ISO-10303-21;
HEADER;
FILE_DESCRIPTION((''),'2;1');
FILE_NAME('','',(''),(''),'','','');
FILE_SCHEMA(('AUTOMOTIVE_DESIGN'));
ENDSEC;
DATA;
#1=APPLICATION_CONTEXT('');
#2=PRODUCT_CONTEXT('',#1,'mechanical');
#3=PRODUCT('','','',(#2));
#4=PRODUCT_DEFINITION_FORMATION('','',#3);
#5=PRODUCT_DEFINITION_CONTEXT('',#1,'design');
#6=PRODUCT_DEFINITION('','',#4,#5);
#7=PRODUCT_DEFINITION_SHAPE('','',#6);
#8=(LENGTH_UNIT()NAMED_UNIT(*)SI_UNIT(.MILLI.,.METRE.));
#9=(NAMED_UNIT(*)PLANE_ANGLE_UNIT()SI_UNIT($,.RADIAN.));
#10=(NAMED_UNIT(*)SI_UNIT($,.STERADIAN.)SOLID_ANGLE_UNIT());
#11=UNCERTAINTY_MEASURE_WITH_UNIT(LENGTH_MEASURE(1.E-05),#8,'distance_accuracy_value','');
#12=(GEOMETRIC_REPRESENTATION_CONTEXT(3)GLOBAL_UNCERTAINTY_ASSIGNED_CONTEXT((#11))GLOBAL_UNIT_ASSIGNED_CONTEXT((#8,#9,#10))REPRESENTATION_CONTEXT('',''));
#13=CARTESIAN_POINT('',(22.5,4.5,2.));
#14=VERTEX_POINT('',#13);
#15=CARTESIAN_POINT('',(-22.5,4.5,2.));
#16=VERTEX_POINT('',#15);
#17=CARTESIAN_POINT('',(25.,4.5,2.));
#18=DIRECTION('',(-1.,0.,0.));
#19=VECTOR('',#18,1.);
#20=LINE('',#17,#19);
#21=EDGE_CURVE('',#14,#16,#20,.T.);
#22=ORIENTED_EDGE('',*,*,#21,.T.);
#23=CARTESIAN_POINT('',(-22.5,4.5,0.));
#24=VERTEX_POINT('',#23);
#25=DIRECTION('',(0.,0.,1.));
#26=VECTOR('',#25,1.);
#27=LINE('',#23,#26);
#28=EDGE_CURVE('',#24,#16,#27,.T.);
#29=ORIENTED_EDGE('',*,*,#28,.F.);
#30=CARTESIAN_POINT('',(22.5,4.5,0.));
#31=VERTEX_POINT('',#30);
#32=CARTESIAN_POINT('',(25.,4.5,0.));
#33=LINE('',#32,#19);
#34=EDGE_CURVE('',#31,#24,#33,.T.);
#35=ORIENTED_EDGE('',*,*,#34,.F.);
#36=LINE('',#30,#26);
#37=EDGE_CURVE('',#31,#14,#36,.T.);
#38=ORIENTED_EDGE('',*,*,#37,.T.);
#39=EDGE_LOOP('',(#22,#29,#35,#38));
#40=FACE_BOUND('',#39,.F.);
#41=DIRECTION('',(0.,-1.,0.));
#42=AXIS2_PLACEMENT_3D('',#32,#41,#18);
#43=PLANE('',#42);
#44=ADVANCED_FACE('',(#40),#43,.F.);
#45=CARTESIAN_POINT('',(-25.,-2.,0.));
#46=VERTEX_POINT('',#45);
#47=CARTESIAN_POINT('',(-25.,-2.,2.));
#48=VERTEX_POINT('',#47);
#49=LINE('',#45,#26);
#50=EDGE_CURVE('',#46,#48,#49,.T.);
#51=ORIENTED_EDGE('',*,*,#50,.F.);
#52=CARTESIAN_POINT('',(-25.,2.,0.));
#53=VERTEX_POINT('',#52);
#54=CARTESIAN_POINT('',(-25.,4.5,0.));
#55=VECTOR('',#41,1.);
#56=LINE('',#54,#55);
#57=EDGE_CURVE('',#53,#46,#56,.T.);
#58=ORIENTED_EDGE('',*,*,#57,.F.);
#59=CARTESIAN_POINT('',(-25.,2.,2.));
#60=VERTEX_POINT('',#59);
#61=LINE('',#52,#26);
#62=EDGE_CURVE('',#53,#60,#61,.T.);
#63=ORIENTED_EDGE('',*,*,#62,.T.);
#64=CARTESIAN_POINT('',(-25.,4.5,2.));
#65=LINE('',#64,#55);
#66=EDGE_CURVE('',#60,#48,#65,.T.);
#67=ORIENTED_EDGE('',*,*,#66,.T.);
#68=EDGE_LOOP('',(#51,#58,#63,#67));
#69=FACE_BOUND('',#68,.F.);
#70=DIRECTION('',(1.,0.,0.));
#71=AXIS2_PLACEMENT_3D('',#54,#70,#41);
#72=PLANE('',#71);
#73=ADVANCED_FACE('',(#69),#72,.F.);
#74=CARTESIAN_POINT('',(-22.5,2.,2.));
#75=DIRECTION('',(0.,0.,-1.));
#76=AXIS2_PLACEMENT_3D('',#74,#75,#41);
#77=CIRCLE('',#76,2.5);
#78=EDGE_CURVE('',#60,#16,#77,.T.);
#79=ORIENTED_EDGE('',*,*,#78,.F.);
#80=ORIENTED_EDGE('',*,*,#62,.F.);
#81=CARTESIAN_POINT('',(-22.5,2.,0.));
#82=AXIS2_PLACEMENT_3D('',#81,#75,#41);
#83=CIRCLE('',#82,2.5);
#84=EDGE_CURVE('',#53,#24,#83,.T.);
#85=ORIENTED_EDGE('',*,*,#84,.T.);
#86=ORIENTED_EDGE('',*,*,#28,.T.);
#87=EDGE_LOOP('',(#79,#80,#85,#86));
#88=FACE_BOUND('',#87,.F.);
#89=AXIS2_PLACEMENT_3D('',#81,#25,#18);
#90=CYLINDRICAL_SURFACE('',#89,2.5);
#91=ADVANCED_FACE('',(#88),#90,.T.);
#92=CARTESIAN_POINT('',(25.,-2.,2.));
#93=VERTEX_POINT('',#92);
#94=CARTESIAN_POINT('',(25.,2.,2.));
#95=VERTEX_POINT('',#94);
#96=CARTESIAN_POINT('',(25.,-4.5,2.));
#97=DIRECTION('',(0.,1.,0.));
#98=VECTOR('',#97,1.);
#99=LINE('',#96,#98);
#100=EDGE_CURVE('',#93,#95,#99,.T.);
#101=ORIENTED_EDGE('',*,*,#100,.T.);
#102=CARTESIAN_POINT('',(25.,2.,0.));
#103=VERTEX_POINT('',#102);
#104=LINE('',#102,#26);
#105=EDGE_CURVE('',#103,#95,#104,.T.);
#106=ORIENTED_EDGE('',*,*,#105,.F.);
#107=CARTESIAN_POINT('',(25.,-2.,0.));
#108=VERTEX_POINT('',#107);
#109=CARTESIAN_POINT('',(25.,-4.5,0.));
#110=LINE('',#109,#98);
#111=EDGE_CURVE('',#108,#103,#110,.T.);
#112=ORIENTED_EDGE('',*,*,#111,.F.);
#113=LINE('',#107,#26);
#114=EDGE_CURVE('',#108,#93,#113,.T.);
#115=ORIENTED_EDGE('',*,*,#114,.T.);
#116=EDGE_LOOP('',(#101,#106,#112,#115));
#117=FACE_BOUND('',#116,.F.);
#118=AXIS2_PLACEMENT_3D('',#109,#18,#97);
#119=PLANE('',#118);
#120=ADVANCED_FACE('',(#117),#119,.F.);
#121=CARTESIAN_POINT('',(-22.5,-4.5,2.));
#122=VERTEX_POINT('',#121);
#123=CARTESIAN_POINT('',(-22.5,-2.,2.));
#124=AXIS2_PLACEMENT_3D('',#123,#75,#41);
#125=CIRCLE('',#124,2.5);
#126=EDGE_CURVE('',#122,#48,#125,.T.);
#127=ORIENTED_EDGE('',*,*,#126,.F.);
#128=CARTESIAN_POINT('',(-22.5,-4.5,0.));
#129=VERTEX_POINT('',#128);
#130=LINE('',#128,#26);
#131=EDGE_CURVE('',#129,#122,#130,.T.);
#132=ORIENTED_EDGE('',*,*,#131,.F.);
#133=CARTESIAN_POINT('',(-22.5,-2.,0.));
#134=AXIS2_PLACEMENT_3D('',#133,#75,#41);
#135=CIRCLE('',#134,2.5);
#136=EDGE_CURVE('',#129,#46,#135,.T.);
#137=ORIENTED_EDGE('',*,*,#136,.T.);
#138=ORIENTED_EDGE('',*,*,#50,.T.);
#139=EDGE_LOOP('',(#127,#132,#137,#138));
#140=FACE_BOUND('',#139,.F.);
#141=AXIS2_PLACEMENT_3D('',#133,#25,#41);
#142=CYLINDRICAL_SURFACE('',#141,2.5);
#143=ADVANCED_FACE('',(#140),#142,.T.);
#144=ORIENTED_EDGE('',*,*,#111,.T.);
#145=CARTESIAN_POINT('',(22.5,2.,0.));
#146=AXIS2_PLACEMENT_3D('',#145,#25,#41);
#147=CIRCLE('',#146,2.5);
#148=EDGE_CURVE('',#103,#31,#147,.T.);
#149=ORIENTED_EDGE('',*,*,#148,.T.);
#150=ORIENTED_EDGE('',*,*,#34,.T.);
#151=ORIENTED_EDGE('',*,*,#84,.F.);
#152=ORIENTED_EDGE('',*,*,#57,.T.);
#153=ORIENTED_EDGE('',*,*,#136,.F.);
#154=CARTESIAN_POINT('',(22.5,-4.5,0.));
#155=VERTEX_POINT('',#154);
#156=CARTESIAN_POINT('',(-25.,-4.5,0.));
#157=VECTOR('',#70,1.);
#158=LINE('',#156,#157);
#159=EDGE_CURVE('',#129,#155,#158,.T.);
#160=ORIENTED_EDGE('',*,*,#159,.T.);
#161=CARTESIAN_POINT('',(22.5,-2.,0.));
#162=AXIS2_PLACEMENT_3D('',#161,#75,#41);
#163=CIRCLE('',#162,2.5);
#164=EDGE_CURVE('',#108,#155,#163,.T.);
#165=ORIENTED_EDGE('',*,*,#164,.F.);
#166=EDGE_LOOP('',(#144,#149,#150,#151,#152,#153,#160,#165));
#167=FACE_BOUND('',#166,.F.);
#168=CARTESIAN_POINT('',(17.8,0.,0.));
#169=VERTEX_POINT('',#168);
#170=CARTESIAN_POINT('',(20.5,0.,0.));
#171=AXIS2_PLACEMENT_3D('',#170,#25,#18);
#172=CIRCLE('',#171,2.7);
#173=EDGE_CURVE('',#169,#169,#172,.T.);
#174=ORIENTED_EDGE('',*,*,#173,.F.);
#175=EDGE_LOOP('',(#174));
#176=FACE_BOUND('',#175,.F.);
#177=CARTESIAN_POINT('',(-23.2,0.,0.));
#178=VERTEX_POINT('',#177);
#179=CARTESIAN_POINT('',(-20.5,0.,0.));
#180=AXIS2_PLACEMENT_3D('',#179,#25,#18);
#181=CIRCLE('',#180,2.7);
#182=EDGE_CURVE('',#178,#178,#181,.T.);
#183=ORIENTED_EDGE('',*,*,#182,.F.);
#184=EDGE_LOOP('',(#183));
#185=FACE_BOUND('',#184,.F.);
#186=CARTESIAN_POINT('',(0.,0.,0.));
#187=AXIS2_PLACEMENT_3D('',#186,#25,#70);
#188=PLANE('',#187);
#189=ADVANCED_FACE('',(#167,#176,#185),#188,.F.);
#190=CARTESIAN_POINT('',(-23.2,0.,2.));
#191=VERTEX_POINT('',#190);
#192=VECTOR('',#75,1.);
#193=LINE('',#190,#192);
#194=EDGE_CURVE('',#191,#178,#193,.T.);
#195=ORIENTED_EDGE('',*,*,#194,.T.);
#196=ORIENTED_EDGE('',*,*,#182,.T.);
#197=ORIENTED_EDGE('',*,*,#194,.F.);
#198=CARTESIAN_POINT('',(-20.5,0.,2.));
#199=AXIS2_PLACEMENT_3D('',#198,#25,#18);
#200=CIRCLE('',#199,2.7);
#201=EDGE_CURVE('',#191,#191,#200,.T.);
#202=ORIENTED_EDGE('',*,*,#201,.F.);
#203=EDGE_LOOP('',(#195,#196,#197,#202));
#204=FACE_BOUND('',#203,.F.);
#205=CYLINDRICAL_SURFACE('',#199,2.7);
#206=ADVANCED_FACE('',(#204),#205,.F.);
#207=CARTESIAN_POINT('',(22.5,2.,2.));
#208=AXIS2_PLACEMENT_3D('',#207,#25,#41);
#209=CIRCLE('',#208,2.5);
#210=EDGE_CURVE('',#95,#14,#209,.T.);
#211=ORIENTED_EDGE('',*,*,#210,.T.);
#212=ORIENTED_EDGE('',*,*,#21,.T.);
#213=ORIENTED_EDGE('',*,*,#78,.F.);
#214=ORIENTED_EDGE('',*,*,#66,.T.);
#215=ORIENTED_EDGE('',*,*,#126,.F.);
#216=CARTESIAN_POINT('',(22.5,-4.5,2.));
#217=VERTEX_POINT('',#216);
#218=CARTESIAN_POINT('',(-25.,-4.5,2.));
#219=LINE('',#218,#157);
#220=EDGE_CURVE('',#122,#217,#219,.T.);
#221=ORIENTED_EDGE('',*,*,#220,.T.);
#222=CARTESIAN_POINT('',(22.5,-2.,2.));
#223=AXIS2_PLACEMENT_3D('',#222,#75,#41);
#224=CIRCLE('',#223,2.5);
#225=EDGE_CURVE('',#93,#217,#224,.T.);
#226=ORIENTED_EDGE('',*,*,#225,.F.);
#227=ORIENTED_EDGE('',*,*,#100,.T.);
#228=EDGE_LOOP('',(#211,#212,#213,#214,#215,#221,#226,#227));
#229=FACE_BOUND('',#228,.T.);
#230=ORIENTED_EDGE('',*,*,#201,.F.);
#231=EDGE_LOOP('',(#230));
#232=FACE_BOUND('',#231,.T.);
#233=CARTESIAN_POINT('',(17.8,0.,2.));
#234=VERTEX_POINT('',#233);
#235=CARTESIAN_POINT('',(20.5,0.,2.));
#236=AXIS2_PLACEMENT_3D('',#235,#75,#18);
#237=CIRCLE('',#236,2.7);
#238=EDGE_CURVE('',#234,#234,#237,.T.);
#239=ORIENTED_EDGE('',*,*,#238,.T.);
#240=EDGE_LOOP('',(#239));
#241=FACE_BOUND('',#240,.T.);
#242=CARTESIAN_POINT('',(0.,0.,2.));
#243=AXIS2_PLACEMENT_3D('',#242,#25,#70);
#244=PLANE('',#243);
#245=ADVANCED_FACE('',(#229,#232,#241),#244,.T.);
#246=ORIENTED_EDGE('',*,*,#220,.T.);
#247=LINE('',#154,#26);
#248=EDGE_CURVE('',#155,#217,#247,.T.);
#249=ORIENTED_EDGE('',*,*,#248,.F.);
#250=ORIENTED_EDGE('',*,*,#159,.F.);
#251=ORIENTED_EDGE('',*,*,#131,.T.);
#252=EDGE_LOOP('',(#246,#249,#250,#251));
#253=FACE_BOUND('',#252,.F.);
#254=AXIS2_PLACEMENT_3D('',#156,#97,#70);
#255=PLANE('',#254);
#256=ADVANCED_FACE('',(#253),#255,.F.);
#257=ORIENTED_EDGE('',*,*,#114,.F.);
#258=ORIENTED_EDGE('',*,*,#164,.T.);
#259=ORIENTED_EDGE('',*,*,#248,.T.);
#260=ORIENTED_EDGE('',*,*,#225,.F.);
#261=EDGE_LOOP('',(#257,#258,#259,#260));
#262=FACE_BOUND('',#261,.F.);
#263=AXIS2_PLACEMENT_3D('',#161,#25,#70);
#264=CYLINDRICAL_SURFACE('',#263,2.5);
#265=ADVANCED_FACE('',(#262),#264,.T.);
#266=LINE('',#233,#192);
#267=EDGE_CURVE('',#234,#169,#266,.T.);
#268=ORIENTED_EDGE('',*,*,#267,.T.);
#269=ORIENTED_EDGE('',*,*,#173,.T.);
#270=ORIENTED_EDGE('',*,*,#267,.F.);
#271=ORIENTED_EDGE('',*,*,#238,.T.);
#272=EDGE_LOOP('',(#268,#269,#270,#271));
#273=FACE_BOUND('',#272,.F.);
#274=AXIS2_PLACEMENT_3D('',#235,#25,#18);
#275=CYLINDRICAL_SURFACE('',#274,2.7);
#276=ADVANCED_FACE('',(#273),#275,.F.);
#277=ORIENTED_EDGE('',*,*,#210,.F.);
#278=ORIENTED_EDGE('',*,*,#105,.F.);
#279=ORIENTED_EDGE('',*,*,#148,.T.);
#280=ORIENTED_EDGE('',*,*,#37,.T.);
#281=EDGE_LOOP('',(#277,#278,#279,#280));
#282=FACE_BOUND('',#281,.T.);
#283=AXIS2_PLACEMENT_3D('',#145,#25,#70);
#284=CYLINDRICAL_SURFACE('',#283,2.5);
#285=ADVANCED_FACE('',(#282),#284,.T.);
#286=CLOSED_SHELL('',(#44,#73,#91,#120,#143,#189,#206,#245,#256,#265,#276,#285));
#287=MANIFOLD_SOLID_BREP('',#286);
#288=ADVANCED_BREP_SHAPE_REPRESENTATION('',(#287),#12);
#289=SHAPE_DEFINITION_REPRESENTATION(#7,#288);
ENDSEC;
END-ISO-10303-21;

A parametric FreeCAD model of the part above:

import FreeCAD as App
import Part
import Sketcher

V = App.Vector


def edges_at(feature, points):
    """Names of the edges that pass closest to the given points."""
    edges = feature.Shape.Edges
    near = lambda p: min(range(len(edges)), key=lambda i: edges[i].distToShape(Part.Vertex(*p))[0])
    return sorted({f"Edge{near(p) + 1}" for p in points})

doc = App.newDocument("Part")
body = doc.addObject("PartDesign::Body", "Body")

# Sketch on XY plane
sketch1 = body.newObject("Sketcher::SketchObject", "Sketch")
sketch1.AttachmentSupport = (doc.getObject("XY_Plane"), [""])
sketch1.MapMode = "FlatFace"
sketch1.addGeometry([
    Part.LineSegment(V(25, -4, 0), V(25, 4, 0)),
    Part.LineSegment(V(25, 4, 0), V(-25, 4, 0)),
    Part.LineSegment(V(-25, 4, 0), V(-25, -4, 0)),
    Part.LineSegment(V(-25, -4, 0), V(25, -4, 0)),
], False)
sketch1.addConstraint([
    Sketcher.Constraint("Coincident", 0, 2, 1, 1),
    Sketcher.Constraint("Coincident", 1, 2, 2, 1),
    Sketcher.Constraint("Coincident", 2, 2, 3, 1),
    Sketcher.Constraint("Coincident", 3, 2, 0, 1),
    Sketcher.Constraint("Vertical", 0),
    Sketcher.Constraint("Horizontal", 1),
    Sketcher.Constraint("Vertical", 2),
    Sketcher.Constraint("Horizontal", 3),
    Sketcher.Constraint("Symmetric", 0, 2, 2, 2, -1, 1),
    Sketcher.Constraint("DistanceX", 1, 2, 1, 1, 50.0),
    Sketcher.Constraint("DistanceY", 0, 1, 0, 2, 9.0),
])
pad1 = body.newObject("PartDesign::Pad", "Pad")
pad1.Profile = sketch1
pad1.Length = 2
doc.recompute()

fillet = body.newObject("PartDesign::Fillet", "Fillet")
fillet.Base = (pad1, edges_at(pad1, [
    (-25, -4.5, 1),
    (-25, 4.5, 1),
    (25, -4.5, 1),
    (25, 4.5, 1),
]))
fillet.Radius = 2.5

# Sketch on XY plane
sketch2 = body.newObject("Sketcher::SketchObject", "Sketch001")
sketch2.AttachmentSupport = (doc.getObject("XY_Plane"), [""])
sketch2.MapMode = "FlatFace"
sketch2.AttachmentOffset = App.Placement(V(0, 0, 2), App.Rotation())
sketch2.addGeometry([
    Part.Circle(V(-20.5, 0, 0), V(0, 0, 1), 2.7),
    Part.Circle(V(20.5, 0, 0), V(0, 0, 1), 2.7),
], False)
sketch2.addConstraint([
    Sketcher.Constraint("Equal", 0, 1),
    Sketcher.Constraint("Symmetric", 0, 3, 1, 3, -1, 1),
    Sketcher.Constraint("PointOnObject", 0, 3, -1),
    Sketcher.Constraint("Diameter", 0, 5.4),
    Sketcher.Constraint("DistanceX", 0, 3, 1, 3, 41.0),
])
pocket1 = body.newObject("PartDesign::Pocket", "Pocket")
pocket1.Profile = sketch2
pocket1.Length = 2

doc.recompute()
